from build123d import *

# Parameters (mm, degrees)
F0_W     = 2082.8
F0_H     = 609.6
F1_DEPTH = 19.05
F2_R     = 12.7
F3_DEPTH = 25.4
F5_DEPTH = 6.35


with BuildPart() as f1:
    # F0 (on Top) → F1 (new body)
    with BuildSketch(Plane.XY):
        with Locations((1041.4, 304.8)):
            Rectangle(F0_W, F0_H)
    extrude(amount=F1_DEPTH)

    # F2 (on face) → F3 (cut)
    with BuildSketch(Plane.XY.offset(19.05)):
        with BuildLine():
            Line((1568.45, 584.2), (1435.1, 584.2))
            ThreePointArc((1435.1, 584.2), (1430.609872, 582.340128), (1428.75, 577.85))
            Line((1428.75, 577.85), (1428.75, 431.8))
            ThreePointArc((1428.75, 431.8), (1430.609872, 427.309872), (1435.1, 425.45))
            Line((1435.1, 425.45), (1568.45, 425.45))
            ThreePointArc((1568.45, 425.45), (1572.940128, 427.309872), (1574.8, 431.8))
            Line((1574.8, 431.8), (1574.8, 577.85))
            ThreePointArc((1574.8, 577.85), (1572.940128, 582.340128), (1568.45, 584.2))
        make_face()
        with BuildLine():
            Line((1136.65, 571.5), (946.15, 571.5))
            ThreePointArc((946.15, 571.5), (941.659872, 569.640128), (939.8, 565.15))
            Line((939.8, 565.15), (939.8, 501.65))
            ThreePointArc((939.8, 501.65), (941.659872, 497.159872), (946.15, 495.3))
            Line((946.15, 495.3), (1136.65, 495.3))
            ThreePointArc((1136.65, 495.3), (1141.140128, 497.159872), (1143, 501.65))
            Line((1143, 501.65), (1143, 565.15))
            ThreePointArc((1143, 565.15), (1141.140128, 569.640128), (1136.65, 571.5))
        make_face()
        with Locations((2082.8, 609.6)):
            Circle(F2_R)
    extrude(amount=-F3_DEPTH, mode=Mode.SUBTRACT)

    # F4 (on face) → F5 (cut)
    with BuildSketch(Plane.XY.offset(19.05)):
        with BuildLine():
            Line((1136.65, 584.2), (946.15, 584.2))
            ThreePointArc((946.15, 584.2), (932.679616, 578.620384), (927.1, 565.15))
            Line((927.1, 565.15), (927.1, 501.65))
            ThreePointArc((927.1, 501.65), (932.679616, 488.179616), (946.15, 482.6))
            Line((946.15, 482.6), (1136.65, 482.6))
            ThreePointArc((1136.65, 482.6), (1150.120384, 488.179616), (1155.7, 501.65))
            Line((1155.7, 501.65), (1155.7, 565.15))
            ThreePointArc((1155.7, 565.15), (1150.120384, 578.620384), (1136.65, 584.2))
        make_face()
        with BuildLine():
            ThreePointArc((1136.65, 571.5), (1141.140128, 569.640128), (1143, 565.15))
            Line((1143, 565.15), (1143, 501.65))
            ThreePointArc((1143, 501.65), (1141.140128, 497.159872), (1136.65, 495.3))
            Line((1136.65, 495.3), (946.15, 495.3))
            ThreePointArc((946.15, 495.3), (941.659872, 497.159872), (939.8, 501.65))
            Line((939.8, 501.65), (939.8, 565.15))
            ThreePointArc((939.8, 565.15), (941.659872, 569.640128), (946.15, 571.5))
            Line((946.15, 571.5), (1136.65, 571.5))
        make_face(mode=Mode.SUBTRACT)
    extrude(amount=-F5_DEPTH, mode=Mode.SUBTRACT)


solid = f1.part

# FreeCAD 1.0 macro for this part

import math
import FreeCAD as App
import Part
import Sketcher
Q = App.Units.Quantity


def add_polygon(sketch, points):
    """Adds a closed chain of lines whose ends are joined by coincident constraints."""
    first, n = sketch.GeometryCount, len(points)
    for a, b in zip(points, points[1:] + points[:1]):
        sketch.addGeometry(Part.LineSegment(App.Vector(*a, 0), App.Vector(*b, 0)), False)
    for i in range(n):
        sketch.addConstraint(Sketcher.Constraint("Coincident", first + i, 2, first + (i + 1) % n, 1))

doc = App.newDocument("Part")
body = doc.addObject("PartDesign::Body", "Body")

sketch1 = doc.addObject("Sketcher::SketchObject", "Sketch")
body.addObject(sketch1)
sketch1.AttachmentSupport = (doc.XY_Plane, [""])
sketch1.MapMode = "FlatFace"
add_polygon(sketch1, [(0, 610), (0, 0), (2083, 0), (2083, 610)])
sketch1.addConstraint([
    Sketcher.Constraint("Vertical", 0),
    Sketcher.Constraint("Horizontal", 1),
    Sketcher.Constraint("Vertical", 2),
    Sketcher.Constraint("Horizontal", 3),
    Sketcher.Constraint("Coincident", 0, 2, -1, 1),
    Sketcher.Constraint("DistanceX", 1, 1, 1, 2, Q("82 in")),
    Sketcher.Constraint("DistanceY", 0, 2, 0, 1, Q("24 in")),
])
pad1 = doc.addObject("PartDesign::Pad", "Pad")
body.addObject(pad1)
pad1.Profile = sketch1
pad1.Length = Q("0.75 in")

sketch2 = doc.addObject("Sketcher::SketchObject", "Sketch001")
body.addObject(sketch2)
sketch2.AttachmentSupport = (doc.XY_Plane, [""])
sketch2.MapMode = "FlatFace"
sketch2.AttachmentOffset = App.Placement(App.Vector(0, 0, 0.75 * 25.4), App.Rotation())
sketch2.addGeometry([
    Part.LineSegment(App.Vector(1568, 584, 0), App.Vector(1435, 584, 0)),
    Part.ArcOfCircle(Part.Circle(App.Vector(1435, 578, 0), App.Vector(0, 0, 1), 6), math.radians(90), math.radians(180)),
    Part.LineSegment(App.Vector(1429, 578, 0), App.Vector(1429, 432, 0)),
    Part.ArcOfCircle(Part.Circle(App.Vector(1435, 432, 0), App.Vector(0, 0, 1), 6), math.radians(-180), math.radians(-90)),
    Part.LineSegment(App.Vector(1435, 425, 0), App.Vector(1568, 425, 0)),
    Part.ArcOfCircle(Part.Circle(App.Vector(1568, 432, 0), App.Vector(0, 0, 1), 6), math.radians(-90), math.radians(0)),
    Part.LineSegment(App.Vector(1575, 432, 0), App.Vector(1575, 578, 0)),
    Part.ArcOfCircle(Part.Circle(App.Vector(1568, 578, 0), App.Vector(0, 0, 1), 6), math.radians(0), math.radians(90)),
    Part.LineSegment(App.Vector(1137, 572, 0), App.Vector(946, 572, 0)),
    Part.ArcOfCircle(Part.Circle(App.Vector(946, 565, 0), App.Vector(0, 0, 1), 6), math.radians(90), math.radians(180)),
    Part.LineSegment(App.Vector(940, 565, 0), App.Vector(940, 502, 0)),
    Part.ArcOfCircle(Part.Circle(App.Vector(946, 502, 0), App.Vector(0, 0, 1), 6), math.radians(-180), math.radians(-90)),
    Part.LineSegment(App.Vector(946, 495, 0), App.Vector(1137, 495, 0)),
    Part.ArcOfCircle(Part.Circle(App.Vector(1137, 502, 0), App.Vector(0, 0, 1), 6), math.radians(-90), math.radians(0)),
    Part.LineSegment(App.Vector(1143, 502, 0), App.Vector(1143, 565, 0)),
    Part.ArcOfCircle(Part.Circle(App.Vector(1137, 565, 0), App.Vector(0, 0, 1), 6), math.radians(0), math.radians(90)),
    Part.Circle(App.Vector(2083, 610, 0), App.Vector(0, 0, 1), 13),
], False)
sketch2.addConstraint([
    Sketcher.Constraint("Tangent", 0, 2, 1, 1),
    Sketcher.Constraint("Tangent", 1, 2, 2, 1),
    Sketcher.Constraint("Tangent", 2, 2, 3, 1),
    Sketcher.Constraint("Tangent", 3, 2, 4, 1),
    Sketcher.Constraint("Tangent", 4, 2, 5, 1),
    Sketcher.Constraint("Tangent", 5, 2, 6, 1),
    Sketcher.Constraint("Tangent", 6, 2, 7, 1),
    Sketcher.Constraint("Tangent", 7, 2, 0, 1),
    Sketcher.Constraint("Tangent", 8, 2, 9, 1),
    Sketcher.Constraint("Tangent", 9, 2, 10, 1),
    Sketcher.Constraint("Tangent", 10, 2, 11, 1),
    Sketcher.Constraint("Tangent", 11, 2, 12, 1),
    Sketcher.Constraint("Tangent", 12, 2, 13, 1),
    Sketcher.Constraint("Tangent", 13, 2, 14, 1),
    Sketcher.Constraint("Tangent", 14, 2, 15, 1),
    Sketcher.Constraint("Tangent", 15, 2, 8, 1),
    Sketcher.Constraint("Horizontal", 0),
    Sketcher.Constraint("Vertical", 2),
    Sketcher.Constraint("Horizontal", 4),
    Sketcher.Constraint("Vertical", 6),
    Sketcher.Constraint("Horizontal", 8),
    Sketcher.Constraint("Vertical", 10),
    Sketcher.Constraint("Horizontal", 12),
    Sketcher.Constraint("Vertical", 14),
    Sketcher.Constraint("Equal", 1, 3),
    Sketcher.Constraint("Equal", 3, 5),
    Sketcher.Constraint("Equal", 5, 7),
    Sketcher.Constraint("Equal", 7, 9),
    Sketcher.Constraint("Equal", 9, 11),
    Sketcher.Constraint("Equal", 11, 13),
    Sketcher.Constraint("Equal", 13, 15),
    Sketcher.Constraint("Diameter", 16, Q("1 in")),
    Sketcher.Constraint("Radius", 1, Q("0.25 in")),
    Sketcher.Constraint("DistanceX", 8, 2, 8, 1, Q("7.5 in")),
    Sketcher.Constraint("DistanceY", 10, 2, 10, 1, Q("2.5 in")),
    Sketcher.Constraint("DistanceY", -1, 1, 3, 3, Q("17 in")),
    Sketcher.Constraint("DistanceX", -1, 1, 16, 3, Q("82 in")),
    Sketcher.Constraint("DistanceY", -1, 1, 16, 3, Q("24 in")),
    Sketcher.Constraint("DistanceY", -1, 1, 0, 2, Q("23 in")),
    Sketcher.Constraint("DistanceX", -1, 1, 5, 2, Q("62 in")),
    Sketcher.Constraint("DistanceX", -1, 1, 9, 2, Q("37 in")),
    Sketcher.Constraint("DistanceY", 11, 3, 1, 3, Q("3 in")),
    Sketcher.Constraint("DistanceX", 8, 2, 1, 2, Q("19 in")),
])
pocket1 = doc.addObject("PartDesign::Pocket", "Pocket")
body.addObject(pocket1)
pocket1.Profile = sketch2
pocket1.Length = Q("1 in")

sketch3 = doc.addObject("Sketcher::SketchObject", "Sketch002")
body.addObject(sketch3)
sketch3.AttachmentSupport = (doc.XY_Plane, [""])
sketch3.MapMode = "FlatFace"
sketch3.AttachmentOffset = App.Placement(App.Vector(0, 0, 0.75 * 25.4), App.Rotation())
sketch3.addGeometry([
    Part.LineSegment(App.Vector(1137, 584, 0), App.Vector(946, 584, 0)),
    Part.ArcOfCircle(Part.Circle(App.Vector(946, 565, 0), App.Vector(0, 0, 1), 19), math.radians(90), math.radians(180)),
    Part.LineSegment(App.Vector(927, 565, 0), App.Vector(927, 502, 0)),
    Part.ArcOfCircle(Part.Circle(App.Vector(946, 502, 0), App.Vector(0, 0, 1), 19), math.radians(-180), math.radians(-90)),
    Part.LineSegment(App.Vector(946, 483, 0), App.Vector(1137, 483, 0)),
    Part.ArcOfCircle(Part.Circle(App.Vector(1137, 502, 0), App.Vector(0, 0, 1), 19), math.radians(-90), math.radians(0)),
    Part.LineSegment(App.Vector(1156, 502, 0), App.Vector(1156, 565, 0)),
    Part.ArcOfCircle(Part.Circle(App.Vector(1137, 565, 0), App.Vector(0, 0, 1), 19), math.radians(0), math.radians(90)),
    Part.LineSegment(App.Vector(946, 572, 0), App.Vector(1137, 572, 0)),
    Part.ArcOfCircle(Part.Circle(App.Vector(1137, 565, 0), App.Vector(0, 0, 1), 6), math.radians(0), math.radians(90)),
    Part.LineSegment(App.Vector(1143, 565, 0), App.Vector(1143, 502, 0)),
    Part.ArcOfCircle(Part.Circle(App.Vector(1137, 502, 0), App.Vector(0, 0, 1), 6), math.radians(-90), math.radians(0)),
    Part.LineSegment(App.Vector(1137, 495, 0), App.Vector(946, 495, 0)),
    Part.ArcOfCircle(Part.Circle(App.Vector(946, 502, 0), App.Vector(0, 0, 1), 6), math.radians(-180), math.radians(-90)),
    Part.LineSegment(App.Vector(940, 502, 0), App.Vector(940, 565, 0)),
    Part.ArcOfCircle(Part.Circle(App.Vector(946, 565, 0), App.Vector(0, 0, 1), 6), math.radians(90), math.radians(180)),
], False)
sketch3.addConstraint([
    Sketcher.Constraint("Tangent", 0, 2, 1, 1),
    Sketcher.Constraint("Tangent", 1, 2, 2, 1),
    Sketcher.Constraint("Tangent", 2, 2, 3, 1),
    Sketcher.Constraint("Tangent", 3, 2, 4, 1),
    Sketcher.Constraint("Tangent", 4, 2, 5, 1),
    Sketcher.Constraint("Tangent", 5, 2, 6, 1),
    Sketcher.Constraint("Tangent", 6, 2, 7, 1),
    Sketcher.Constraint("Tangent", 7, 2, 0, 1),
    Sketcher.Constraint("Tangent", 8, 2, 9, 2),
    Sketcher.Constraint("Tangent", 9, 1, 10, 1),
    Sketcher.Constraint("Tangent", 10, 2, 11, 2),
    Sketcher.Constraint("Tangent", 11, 1, 12, 1),
    Sketcher.Constraint("Tangent", 12, 2, 13, 2),
    Sketcher.Constraint("Tangent", 13, 1, 14, 1),
    Sketcher.Constraint("Tangent", 14, 2, 15, 2),
    Sketcher.Constraint("Tangent", 15, 1, 8, 1),
    Sketcher.Constraint("Horizontal", 0),
    Sketcher.Constraint("Vertical", 2),
    Sketcher.Constraint("Horizontal", 4),
    Sketcher.Constraint("Vertical", 6),
    Sketcher.Constraint("Horizontal", 8),
    Sketcher.Constraint("Vertical", 10),
    Sketcher.Constraint("Horizontal", 12),
    Sketcher.Constraint("Vertical", 14),
    Sketcher.Constraint("Coincident", 9, 3, 7, 3),
    Sketcher.Constraint("Coincident", 11, 3, 5, 3),
    Sketcher.Constraint("Coincident", 13, 3, 3, 3),
    Sketcher.Constraint("Equal", 1, 3),
    Sketcher.Constraint("Equal", 3, 5),
    Sketcher.Constraint("Equal", 5, 7),
    Sketcher.Constraint("Equal", 13, 15),
    Sketcher.Constraint("Radius", 1, Q("0.75 in")),
    Sketcher.Constraint("Radius", 9, Q("0.25 in")),
    Sketcher.Constraint("DistanceX", 0, 2, 0, 1, Q("7.5 in")),
    Sketcher.Constraint("DistanceY", 2, 2, 2, 1, Q("2.5 in")),
    Sketcher.Constraint("DistanceY", -1, 1, 0, 2, Q("23 in")),
    Sketcher.Constraint("DistanceX", -1, 1, 9, 1, Q("45 in")),
])
pocket2 = doc.addObject("PartDesign::Pocket", "Pocket001")
body.addObject(pocket2)
pocket2.Profile = sketch3
pocket2.Length = Q("0.25 in")

doc.recompute()
